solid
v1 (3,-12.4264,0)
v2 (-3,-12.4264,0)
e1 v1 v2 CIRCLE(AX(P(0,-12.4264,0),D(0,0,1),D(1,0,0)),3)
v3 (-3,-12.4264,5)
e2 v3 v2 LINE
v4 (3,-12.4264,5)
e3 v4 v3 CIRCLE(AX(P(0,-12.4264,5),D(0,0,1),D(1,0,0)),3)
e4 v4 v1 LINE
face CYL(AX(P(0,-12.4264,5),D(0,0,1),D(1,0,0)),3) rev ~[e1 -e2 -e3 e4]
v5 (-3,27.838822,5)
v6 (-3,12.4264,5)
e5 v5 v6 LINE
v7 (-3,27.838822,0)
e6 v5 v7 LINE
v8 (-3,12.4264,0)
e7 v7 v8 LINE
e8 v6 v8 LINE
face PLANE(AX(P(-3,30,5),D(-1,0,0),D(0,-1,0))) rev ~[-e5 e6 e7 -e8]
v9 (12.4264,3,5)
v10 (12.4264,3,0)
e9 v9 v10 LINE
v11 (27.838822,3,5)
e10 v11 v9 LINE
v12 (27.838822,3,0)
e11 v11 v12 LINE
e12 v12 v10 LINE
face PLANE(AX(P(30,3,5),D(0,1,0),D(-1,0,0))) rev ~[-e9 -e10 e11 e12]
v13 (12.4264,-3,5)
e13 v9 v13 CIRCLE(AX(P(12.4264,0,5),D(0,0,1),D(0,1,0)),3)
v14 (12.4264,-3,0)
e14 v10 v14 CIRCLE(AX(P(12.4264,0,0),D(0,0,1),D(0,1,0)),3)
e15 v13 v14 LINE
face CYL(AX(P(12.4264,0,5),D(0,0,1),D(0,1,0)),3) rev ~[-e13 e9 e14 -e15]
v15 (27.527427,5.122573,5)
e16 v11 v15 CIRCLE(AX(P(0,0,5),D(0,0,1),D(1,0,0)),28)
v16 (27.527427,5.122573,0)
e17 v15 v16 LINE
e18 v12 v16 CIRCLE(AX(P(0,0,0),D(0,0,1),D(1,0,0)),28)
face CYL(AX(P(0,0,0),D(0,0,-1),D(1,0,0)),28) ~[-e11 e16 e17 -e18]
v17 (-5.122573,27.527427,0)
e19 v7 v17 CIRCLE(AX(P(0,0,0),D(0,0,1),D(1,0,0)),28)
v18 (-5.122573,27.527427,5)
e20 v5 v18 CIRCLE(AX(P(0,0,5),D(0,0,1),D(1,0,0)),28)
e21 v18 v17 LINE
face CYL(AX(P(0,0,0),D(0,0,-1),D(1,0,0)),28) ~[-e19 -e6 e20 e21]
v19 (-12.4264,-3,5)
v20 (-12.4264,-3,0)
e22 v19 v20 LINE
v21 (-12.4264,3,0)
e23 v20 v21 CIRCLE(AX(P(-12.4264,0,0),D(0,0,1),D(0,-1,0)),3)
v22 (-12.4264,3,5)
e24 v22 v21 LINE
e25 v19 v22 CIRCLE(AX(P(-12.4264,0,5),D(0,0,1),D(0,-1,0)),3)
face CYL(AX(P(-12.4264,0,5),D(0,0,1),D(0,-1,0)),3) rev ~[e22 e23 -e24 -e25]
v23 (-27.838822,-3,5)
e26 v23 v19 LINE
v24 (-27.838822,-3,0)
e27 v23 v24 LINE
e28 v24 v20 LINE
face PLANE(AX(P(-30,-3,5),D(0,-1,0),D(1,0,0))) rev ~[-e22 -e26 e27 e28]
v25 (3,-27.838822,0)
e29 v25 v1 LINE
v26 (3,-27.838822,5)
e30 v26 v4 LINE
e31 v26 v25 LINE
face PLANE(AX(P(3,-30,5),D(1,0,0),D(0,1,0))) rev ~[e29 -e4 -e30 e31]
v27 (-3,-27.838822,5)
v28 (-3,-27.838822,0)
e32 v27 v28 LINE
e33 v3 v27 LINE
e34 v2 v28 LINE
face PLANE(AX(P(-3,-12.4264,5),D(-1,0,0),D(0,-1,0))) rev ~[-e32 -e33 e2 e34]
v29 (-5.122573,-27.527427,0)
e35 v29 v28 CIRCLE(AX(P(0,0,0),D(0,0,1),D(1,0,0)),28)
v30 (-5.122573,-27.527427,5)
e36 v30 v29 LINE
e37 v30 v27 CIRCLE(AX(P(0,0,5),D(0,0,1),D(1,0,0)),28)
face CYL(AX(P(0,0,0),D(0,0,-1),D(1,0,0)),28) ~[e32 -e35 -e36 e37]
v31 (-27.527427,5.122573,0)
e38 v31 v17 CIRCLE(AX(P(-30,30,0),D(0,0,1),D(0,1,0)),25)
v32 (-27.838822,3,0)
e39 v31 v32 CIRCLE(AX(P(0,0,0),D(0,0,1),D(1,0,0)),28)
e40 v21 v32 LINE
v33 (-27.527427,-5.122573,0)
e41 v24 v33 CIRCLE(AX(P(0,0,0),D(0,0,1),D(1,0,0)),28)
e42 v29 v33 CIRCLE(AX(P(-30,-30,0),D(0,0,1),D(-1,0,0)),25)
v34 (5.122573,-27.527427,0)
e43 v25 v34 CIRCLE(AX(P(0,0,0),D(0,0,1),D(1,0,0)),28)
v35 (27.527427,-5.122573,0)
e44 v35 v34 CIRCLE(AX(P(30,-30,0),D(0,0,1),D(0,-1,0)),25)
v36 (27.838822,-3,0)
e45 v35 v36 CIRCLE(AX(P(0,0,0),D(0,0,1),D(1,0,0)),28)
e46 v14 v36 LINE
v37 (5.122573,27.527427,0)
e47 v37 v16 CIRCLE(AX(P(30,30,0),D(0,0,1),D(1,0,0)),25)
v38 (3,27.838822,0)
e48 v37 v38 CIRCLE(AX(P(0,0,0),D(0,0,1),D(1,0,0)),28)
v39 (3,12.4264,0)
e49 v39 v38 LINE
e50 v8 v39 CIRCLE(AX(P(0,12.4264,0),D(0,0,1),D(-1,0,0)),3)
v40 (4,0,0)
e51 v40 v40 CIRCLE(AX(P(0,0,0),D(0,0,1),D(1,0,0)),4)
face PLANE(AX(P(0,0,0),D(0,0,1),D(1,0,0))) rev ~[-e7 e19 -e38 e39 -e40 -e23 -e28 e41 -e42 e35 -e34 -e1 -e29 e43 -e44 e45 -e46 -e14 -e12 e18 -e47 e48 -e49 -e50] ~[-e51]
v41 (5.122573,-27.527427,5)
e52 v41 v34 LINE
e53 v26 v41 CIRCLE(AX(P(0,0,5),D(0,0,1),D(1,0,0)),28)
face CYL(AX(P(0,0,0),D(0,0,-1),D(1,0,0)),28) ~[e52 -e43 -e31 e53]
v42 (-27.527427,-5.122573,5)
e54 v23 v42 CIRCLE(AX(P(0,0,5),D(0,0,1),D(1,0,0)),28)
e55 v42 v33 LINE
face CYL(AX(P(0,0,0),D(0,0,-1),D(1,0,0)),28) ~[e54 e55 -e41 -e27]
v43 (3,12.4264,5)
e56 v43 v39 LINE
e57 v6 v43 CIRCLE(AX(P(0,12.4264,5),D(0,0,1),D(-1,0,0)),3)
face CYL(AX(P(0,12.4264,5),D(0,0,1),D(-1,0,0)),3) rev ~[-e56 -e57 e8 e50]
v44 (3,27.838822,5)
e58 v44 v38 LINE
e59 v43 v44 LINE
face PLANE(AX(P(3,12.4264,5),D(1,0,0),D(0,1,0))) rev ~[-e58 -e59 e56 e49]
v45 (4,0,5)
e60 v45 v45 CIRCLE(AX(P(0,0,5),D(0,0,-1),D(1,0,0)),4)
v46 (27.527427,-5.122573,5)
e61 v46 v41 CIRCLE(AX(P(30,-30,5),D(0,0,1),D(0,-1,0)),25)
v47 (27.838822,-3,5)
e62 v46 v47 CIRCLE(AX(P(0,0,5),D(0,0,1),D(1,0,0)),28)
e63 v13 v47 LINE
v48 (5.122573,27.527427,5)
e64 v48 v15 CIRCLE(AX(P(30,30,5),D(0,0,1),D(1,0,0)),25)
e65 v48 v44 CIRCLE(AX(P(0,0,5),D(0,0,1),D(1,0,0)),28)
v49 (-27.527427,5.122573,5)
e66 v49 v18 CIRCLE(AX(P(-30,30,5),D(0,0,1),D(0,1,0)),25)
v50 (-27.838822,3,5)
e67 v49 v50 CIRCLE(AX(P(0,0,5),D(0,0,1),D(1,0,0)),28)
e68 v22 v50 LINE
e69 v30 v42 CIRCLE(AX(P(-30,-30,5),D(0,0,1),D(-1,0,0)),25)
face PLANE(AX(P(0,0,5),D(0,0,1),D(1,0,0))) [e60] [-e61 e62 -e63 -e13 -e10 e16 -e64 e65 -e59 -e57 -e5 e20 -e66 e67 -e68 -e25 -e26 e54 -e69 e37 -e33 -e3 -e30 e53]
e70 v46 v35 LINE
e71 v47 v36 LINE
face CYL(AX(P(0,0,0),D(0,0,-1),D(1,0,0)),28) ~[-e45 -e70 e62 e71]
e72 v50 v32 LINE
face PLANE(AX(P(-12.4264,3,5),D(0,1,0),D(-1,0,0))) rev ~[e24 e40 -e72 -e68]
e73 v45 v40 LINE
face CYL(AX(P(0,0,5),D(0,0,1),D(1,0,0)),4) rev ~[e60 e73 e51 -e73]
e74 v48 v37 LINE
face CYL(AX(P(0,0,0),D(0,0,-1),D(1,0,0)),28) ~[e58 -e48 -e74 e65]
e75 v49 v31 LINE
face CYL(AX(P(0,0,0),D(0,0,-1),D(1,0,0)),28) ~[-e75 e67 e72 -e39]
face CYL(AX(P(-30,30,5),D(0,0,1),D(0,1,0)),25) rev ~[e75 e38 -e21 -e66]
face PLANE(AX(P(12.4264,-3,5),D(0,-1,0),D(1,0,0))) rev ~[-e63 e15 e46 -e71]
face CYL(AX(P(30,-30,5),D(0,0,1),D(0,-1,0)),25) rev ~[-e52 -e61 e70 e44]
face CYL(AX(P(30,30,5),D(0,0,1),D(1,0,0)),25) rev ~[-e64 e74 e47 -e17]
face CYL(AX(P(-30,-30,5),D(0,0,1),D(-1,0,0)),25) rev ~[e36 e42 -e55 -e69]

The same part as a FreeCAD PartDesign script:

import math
import FreeCAD as App
import Part
import Sketcher

doc = App.newDocument("Part")
body = doc.addObject("PartDesign::Body", "Body")

# Sketch on XY plane
sketch1 = body.newObject("Sketcher::SketchObject", "Sketch")
sketch1.AttachmentSupport = (doc.getObject("XY_Plane"), [""])
sketch1.MapMode = "FlatFace"
sketch1.addGeometry(Part.Circle(App.Vector(0, 0, 0), App.Vector(0, 0, 1), 28), False)
sketch1.addConstraint([
    Sketcher.Constraint("Coincident", 0, 3, -1, 1),
    Sketcher.Constraint("Diameter", 0, 56.0),
])
pad1 = body.newObject("PartDesign::Pad", "Pad")
pad1.Profile = sketch1
pad1.Length = 5

# Sketch on XY plane
sketch2 = body.newObject("Sketcher::SketchObject", "Sketch001")
sketch2.AttachmentSupport = (doc.getObject("XY_Plane"), [""])
sketch2.MapMode = "FlatFace"
sketch2.AttachmentOffset = App.Placement(App.Vector(0, 0, 5), App.Rotation())
sketch2.addGeometry([
    Part.Circle(App.Vector(30, 30, 0), App.Vector(0, 0, 1), 25),  # 0
    Part.Circle(App.Vector(0, 0, 0), App.Vector(0, 0, 1), 4),  # 1
    Part.ArcOfCircle(Part.Circle(App.Vector(30, 0, 0), App.Vector(0, 0, 1), 3), math.radians(-90), math.radians(90)),  # 2
    Part.LineSegment(App.Vector(30, 3, 0), App.Vector(12.4264, 3, 0)),  # 3
    Part.ArcOfCircle(Part.Circle(App.Vector(12.4264, 0, 0), App.Vector(0, 0, 1), 3), math.radians(90), math.radians(270)),  # 4
    Part.LineSegment(App.Vector(12.4264, -3, 0), App.Vector(30, -3, 0)),  # 5
], False)
sketch2.addConstraint([
    Sketcher.Constraint("Tangent", 2, 2, 3, 1),
    Sketcher.Constraint("Tangent", 3, 2, 4, 1),
    Sketcher.Constraint("Tangent", 4, 2, 5, 1),
    Sketcher.Constraint("Tangent", 5, 2, 2, 1),
    Sketcher.Constraint("Horizontal", 3),
    Sketcher.Constraint("Horizontal", 5),
    Sketcher.Constraint("Coincident", 1, 3, -1, 1),
    Sketcher.Constraint("PointOnObject", 2, 3, -1),
    Sketcher.Constraint("Vertical", 0, 3, 2, 3),
    Sketcher.Constraint("Diameter", 0, 50.0),
    Sketcher.Constraint("Diameter", 1, 8.0),
    Sketcher.Constraint("Radius", 2, 3.0),
    Sketcher.Constraint("DistanceX", -1, 1, 0, 3, 30.0),
    Sketcher.Constraint("DistanceY", -1, 1, 0, 3, 30.0),
    Sketcher.Constraint("DistanceX", 3, 2, 3, 1, 17.5736),
])
pocket1 = body.newObject("PartDesign::Pocket", "Pocket")
pocket1.Profile = sketch2
pocket1.Length = 5
doc.recompute()

polarpattern = body.newObject("PartDesign::PolarPattern", "PolarPattern")
polarpattern.Originals = [pocket1]
polarpattern.Axis = (doc.getObject("Z_Axis"), [""])
polarpattern.Angle = 360
polarpattern.Occurrences = 4
body.Tip = polarpattern

doc.recompute()
